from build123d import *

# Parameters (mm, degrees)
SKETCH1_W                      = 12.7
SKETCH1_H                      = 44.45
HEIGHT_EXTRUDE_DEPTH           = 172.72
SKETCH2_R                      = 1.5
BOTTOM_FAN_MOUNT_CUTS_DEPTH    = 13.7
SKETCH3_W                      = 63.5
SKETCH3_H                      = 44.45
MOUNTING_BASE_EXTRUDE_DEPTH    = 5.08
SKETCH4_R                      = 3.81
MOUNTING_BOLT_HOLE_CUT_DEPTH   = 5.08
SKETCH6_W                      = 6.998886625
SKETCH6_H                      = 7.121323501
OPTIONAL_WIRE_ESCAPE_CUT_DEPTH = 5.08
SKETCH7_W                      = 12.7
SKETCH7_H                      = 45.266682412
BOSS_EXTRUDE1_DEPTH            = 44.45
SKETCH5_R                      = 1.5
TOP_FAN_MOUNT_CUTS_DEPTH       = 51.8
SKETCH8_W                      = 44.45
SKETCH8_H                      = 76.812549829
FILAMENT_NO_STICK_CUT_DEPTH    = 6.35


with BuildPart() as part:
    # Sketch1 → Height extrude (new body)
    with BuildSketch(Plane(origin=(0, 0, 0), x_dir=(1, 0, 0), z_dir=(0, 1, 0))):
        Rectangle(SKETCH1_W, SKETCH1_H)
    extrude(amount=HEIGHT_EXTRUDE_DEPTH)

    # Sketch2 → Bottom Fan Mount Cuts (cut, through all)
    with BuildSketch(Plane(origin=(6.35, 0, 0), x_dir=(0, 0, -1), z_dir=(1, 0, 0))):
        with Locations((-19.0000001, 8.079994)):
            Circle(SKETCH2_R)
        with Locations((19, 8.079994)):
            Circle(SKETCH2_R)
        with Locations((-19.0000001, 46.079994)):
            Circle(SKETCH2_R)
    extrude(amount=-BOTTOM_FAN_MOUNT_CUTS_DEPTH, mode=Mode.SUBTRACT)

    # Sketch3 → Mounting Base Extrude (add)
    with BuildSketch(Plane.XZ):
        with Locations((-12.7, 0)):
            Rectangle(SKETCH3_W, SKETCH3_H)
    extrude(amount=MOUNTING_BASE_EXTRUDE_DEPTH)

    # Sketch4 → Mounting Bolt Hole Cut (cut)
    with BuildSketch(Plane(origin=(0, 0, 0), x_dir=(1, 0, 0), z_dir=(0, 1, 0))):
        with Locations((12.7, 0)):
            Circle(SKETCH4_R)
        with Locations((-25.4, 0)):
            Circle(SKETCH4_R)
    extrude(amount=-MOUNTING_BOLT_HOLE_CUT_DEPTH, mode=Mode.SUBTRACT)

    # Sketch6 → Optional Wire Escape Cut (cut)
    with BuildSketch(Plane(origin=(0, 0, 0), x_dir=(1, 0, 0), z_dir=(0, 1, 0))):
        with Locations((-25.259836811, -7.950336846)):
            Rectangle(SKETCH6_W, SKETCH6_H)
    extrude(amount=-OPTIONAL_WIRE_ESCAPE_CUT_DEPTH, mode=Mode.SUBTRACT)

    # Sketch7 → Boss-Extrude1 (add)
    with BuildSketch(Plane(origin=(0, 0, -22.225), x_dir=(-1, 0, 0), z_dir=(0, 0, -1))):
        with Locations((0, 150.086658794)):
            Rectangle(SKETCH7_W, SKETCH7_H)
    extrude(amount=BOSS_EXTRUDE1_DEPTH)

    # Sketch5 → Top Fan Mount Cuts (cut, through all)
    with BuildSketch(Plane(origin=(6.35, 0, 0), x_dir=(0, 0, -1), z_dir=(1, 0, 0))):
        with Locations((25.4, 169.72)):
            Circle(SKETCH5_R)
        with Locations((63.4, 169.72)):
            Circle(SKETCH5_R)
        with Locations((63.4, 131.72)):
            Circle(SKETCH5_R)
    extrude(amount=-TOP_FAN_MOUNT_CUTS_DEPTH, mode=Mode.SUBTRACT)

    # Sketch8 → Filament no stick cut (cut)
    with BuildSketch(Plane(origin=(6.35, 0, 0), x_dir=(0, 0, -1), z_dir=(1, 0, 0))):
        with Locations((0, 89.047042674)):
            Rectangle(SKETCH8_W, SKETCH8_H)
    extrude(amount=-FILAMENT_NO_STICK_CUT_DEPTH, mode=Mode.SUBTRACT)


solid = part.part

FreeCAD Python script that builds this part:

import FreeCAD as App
import Part
import Sketcher

V = App.Vector
Q = App.Units.Quantity

doc = App.newDocument("Part")
body = doc.addObject("PartDesign::Body", "Body")

# Sketch on XZ plane
sketch1 = body.newObject("Sketcher::SketchObject", "Sketch")
sketch1.AttachmentSupport = (doc.getObject("XZ_Plane"), [""])
sketch1.MapMode = "FlatFace"
sketch1.addGeometry([
    Part.LineSegment(V(-6, -22, 0), V(-6, 22, 0)),
    Part.LineSegment(V(-6, 22, 0), V(6, 22, 0)),
    Part.LineSegment(V(6, 22, 0), V(6, -22, 0)),
    Part.LineSegment(V(6, -22, 0), V(-6, -22, 0)),
], False)
sketch1.addConstraint([
    Sketcher.Constraint("Coincident", 0, 2, 1, 1),
    Sketcher.Constraint("Coincident", 1, 2, 2, 1),
    Sketcher.Constraint("Coincident", 2, 2, 3, 1),
    Sketcher.Constraint("Coincident", 3, 2, 0, 1),
    Sketcher.Constraint("Vertical", 0),
    Sketcher.Constraint("Horizontal", 1),
    Sketcher.Constraint("Vertical", 2),
    Sketcher.Constraint("Horizontal", 3),
    Sketcher.Constraint("Symmetric", 0, 2, 2, 2, -1, 1),
    Sketcher.Constraint("DistanceX", 1, 1, 1, 2, Q("0.5 in")),
    Sketcher.Constraint("DistanceY", 0, 1, 0, 2, Q("1.75 in")),
])
pad1 = body.newObject("PartDesign::Pad", "Pad")
pad1.Profile = sketch1
pad1.Length = Q("6.8 in")
pad1.Reversed = True

# Sketch on YZ plane
sketch2 = body.newObject("Sketcher::SketchObject", "Sketch001")
sketch2.AttachmentSupport = (doc.getObject("YZ_Plane"), [""])
sketch2.MapMode = "FlatFace"
sketch2.AttachmentOffset = App.Placement(V(0, 0, 0.25 * 25.4), App.Rotation())
sketch2.addGeometry([
    Part.Circle(V(8.1, 19, 0), V(0, 0, 1), 1.5),
    Part.Circle(V(8.1, -19, 0), V(0, 0, 1), 1.5),
    Part.Circle(V(46.1, 19, 0), V(0, 0, 1), 1.5),
], False)
sketch2.addConstraint([
    Sketcher.Constraint("Equal", 0, 1),
    Sketcher.Constraint("Equal", 1, 2),
    Sketcher.Constraint("Symmetric", 0, 3, 1, 3, -1),
    Sketcher.Constraint("Horizontal", 0, 3, 2, 3),
    Sketcher.Constraint("Diameter", 0, 3.0),
    Sketcher.Constraint("DistanceY", -1, 1, 0, 3, 19.0),
    Sketcher.Constraint("DistanceX", 0, 3, 2, 3, 38.0),
    Sketcher.Constraint("DistanceX", -1, 1, 0, 3, 8.079994),
])
pocket1 = body.newObject("PartDesign::Pocket", "Pocket")
pocket1.Profile = sketch2
pocket1.Type = "ThroughAll"

# Sketch on XZ plane
sketch3 = body.newObject("Sketcher::SketchObject", "Sketch002")
sketch3.AttachmentSupport = (doc.getObject("XZ_Plane"), [""])
sketch3.MapMode = "FlatFace"
sketch3.addGeometry([
    Part.LineSegment(V(-44, 22, 0), V(-44, -22, 0)),
    Part.LineSegment(V(-44, -22, 0), V(19, -22, 0)),
    Part.LineSegment(V(19, -22, 0), V(19, 22, 0)),
    Part.LineSegment(V(19, 22, 0), V(-44, 22, 0)),
], False)
sketch3.addConstraint([
    Sketcher.Constraint("Coincident", 0, 2, 1, 1),
    Sketcher.Constraint("Coincident", 1, 2, 2, 1),
    Sketcher.Constraint("Coincident", 2, 2, 3, 1),
    Sketcher.Constraint("Coincident", 3, 2, 0, 1),
    Sketcher.Constraint("Vertical", 0),
    Sketcher.Constraint("Horizontal", 1),
    Sketcher.Constraint("Vertical", 2),
    Sketcher.Constraint("Horizontal", 3),
    Sketcher.Constraint("DistanceX", 1, 1, 1, 2, Q("2.5 in")),
    Sketcher.Constraint("DistanceY", 0, 2, 0, 1, Q("1.75 in")),
    Sketcher.Constraint("DistanceX", 0, 2, -1, 1, Q("1.75 in")),
    Sketcher.Constraint("DistanceY", 0, 2, -1, 1, Q("0.875 in")),
])
pad2 = body.newObject("PartDesign::Pad", "Pad001")
pad2.Profile = sketch3
pad2.Length = Q("0.2 in")

# Sketch on XZ plane
sketch4 = body.newObject("Sketcher::SketchObject", "Sketch003")
sketch4.AttachmentSupport = (doc.getObject("XZ_Plane"), [""])
sketch4.MapMode = "FlatFace"
sketch4.addGeometry([
    Part.Circle(V(12.7, 0, 0), V(0, 0, 1), 3.8),
    Part.Circle(V(-25.4, 0, 0), V(0, 0, 1), 3.8),
], False)
sketch4.addConstraint([
    Sketcher.Constraint("Equal", 0, 1),
    Sketcher.Constraint("PointOnObject", 0, 3, -1),
    Sketcher.Constraint("PointOnObject", 1, 3, -1),
    Sketcher.Constraint("Diameter", 0, Q("0.3 in")),
    Sketcher.Constraint("DistanceX", 1, 3, -1, 1, Q("1 in")),
    Sketcher.Constraint("DistanceX", -1, 1, 0, 3, Q("0.5 in")),
])
pocket2 = body.newObject("PartDesign::Pocket", "Pocket001")
pocket2.Profile = sketch4
pocket2.Length = Q("0.2 in")
pocket2.Reversed = True

# Sketch on XZ plane
sketch5 = body.newObject("Sketcher::SketchObject", "Sketch004")
sketch5.AttachmentSupport = (doc.getObject("XZ_Plane"), [""])
sketch5.MapMode = "FlatFace"
sketch5.addGeometry([
    Part.LineSegment(V(-29, 4, 0), V(-29, 12, 0)),
    Part.LineSegment(V(-29, 12, 0), V(-22, 12, 0)),
    Part.LineSegment(V(-22, 12, 0), V(-22, 4, 0)),
    Part.LineSegment(V(-22, 4, 0), V(-29, 4, 0)),
], False)
sketch5.addConstraint([
    Sketcher.Constraint("Coincident", 0, 2, 1, 1),
    Sketcher.Constraint("Coincident", 1, 2, 2, 1),
    Sketcher.Constraint("Coincident", 2, 2, 3, 1),
    Sketcher.Constraint("Coincident", 3, 2, 0, 1),
    Sketcher.Constraint("Vertical", 0),
    Sketcher.Constraint("Horizontal", 1),
    Sketcher.Constraint("Vertical", 2),
    Sketcher.Constraint("Horizontal", 3),
    Sketcher.Constraint("DistanceY", -1, 1, 0, 2, 11.510999),
    Sketcher.Constraint("DistanceX", 1, 1, 1, 2, 6.998887),
    Sketcher.Constraint("DistanceY", 0, 1, 0, 2, 7.121324),
    Sketcher.Constraint("DistanceX", 0, 2, -1, 1, 28.75928),
])
pocket3 = body.newObject("PartDesign::Pocket", "Pocket002")
pocket3.Profile = sketch5
pocket3.Length = Q("0.2 in")
pocket3.Reversed = True

# Sketch on XY plane
sketch6 = body.newObject("Sketcher::SketchObject", "Sketch005")
sketch6.AttachmentSupport = (doc.getObject("XY_Plane"), [""])
sketch6.MapMode = "FlatFace"
sketch6.AttachmentOffset = App.Placement(V(0, 0, -0.875 * 25.4), App.Rotation())
sketch6.addGeometry([
    Part.LineSegment(V(6, 173, 0), V(6, 127, 0)),
    Part.LineSegment(V(6, 127, 0), V(-6, 127, 0)),
    Part.LineSegment(V(-6, 127, 0), V(-6, 173, 0)),
    Part.LineSegment(V(-6, 173, 0), V(6, 173, 0)),
], False)
sketch6.addConstraint([
    Sketcher.Constraint("Coincident", 0, 2, 1, 1),
    Sketcher.Constraint("Coincident", 1, 2, 2, 1),
    Sketcher.Constraint("Coincident", 2, 2, 3, 1),
    Sketcher.Constraint("Coincident", 3, 2, 0, 1),
    Sketcher.Constraint("Vertical", 0),
    Sketcher.Constraint("Horizontal", 1),
    Sketcher.Constraint("Vertical", 2),
    Sketcher.Constraint("Horizontal", 3),
    Sketcher.Constraint("DistanceX", 1, 2, 1, 1, Q("0.5 in")),
    Sketcher.Constraint("DistanceY", -1, 1, 2, 2, Q("6.8 in")),
    Sketcher.Constraint("DistanceX", -1, 1, 0, 2, Q("0.25 in")),
    Sketcher.Constraint("DistanceY", 0, 2, 0, 1, 45.266682),
])
pad3 = body.newObject("PartDesign::Pad", "Pad002")
pad3.Profile = sketch6
pad3.Length = Q("1.75 in")
pad3.Reversed = True

# Sketch on YZ plane
sketch7 = body.newObject("Sketcher::SketchObject", "Sketch006")
sketch7.AttachmentSupport = (doc.getObject("YZ_Plane"), [""])
sketch7.MapMode = "FlatFace"
sketch7.AttachmentOffset = App.Placement(V(0, 0, 0.25 * 25.4), App.Rotation())
sketch7.addGeometry([
    Part.Circle(V(169.7, -25.4, 0), V(0, 0, 1), 1.5),
    Part.Circle(V(169.7, -63.4, 0), V(0, 0, 1), 1.5),
    Part.Circle(V(131.7, -63.4, 0), V(0, 0, 1), 1.5),
], False)
sketch7.addConstraint([
    Sketcher.Constraint("Equal", 0, 1),
    Sketcher.Constraint("Equal", 1, 2),
    Sketcher.Constraint("Horizontal", 1, 3, 2, 3),
    Sketcher.Constraint("Vertical", 0, 3, 1, 3),
    Sketcher.Constraint("DistanceY", 0, 3, -1, 1, Q("1 in")),
    Sketcher.Constraint("Diameter", 0, 3.0),
    Sketcher.Constraint("DistanceX", -1, 1, 0, 3, 169.72),
    Sketcher.Constraint("DistanceY", 1, 3, -1, 1, 63.4),
    Sketcher.Constraint("DistanceX", -1, 1, 2, 3, 131.72),
])
pocket4 = body.newObject("PartDesign::Pocket", "Pocket003")
pocket4.Profile = sketch7
pocket4.Type = "ThroughAll"

# Sketch on YZ plane
sketch8 = body.newObject("Sketcher::SketchObject", "Sketch007")
sketch8.AttachmentSupport = (doc.getObject("YZ_Plane"), [""])
sketch8.MapMode = "FlatFace"
sketch8.AttachmentOffset = App.Placement(V(0, 0, 0.25 * 25.4), App.Rotation())
sketch8.addGeometry([
    Part.LineSegment(V(127, 22, 0), V(51, 22, 0)),
    Part.LineSegment(V(51, 22, 0), V(51, -22, 0)),
    Part.LineSegment(V(51, -22, 0), V(127, -22, 0)),
    Part.LineSegment(V(127, -22, 0), V(127, 22, 0)),
], False)
sketch8.addConstraint([
    Sketcher.Constraint("Coincident", 0, 2, 1, 1),
    Sketcher.Constraint("Coincident", 1, 2, 2, 1),
    Sketcher.Constraint("Coincident", 2, 2, 3, 1),
    Sketcher.Constraint("Coincident", 3, 2, 0, 1),
    Sketcher.Constraint("Horizontal", 0),
    Sketcher.Constraint("Vertical", 1),
    Sketcher.Constraint("Horizontal", 2),
    Sketcher.Constraint("Vertical", 3),
    Sketcher.Constraint("DistanceY", 1, 2, 1, 1, Q("1.75 in")),
    Sketcher.Constraint("DistanceY", -1, 1, 0, 2, Q("0.875 in")),
    Sketcher.Constraint("DistanceX", 0, 2, 0, 1, 76.81255),
    Sketcher.Constraint("DistanceX", -1, 1, 0, 2, 50.640768),
])
pocket5 = body.newObject("PartDesign::Pocket", "Pocket004")
pocket5.Profile = sketch8
pocket5.Length = Q("0.25 in")

doc.recompute()
